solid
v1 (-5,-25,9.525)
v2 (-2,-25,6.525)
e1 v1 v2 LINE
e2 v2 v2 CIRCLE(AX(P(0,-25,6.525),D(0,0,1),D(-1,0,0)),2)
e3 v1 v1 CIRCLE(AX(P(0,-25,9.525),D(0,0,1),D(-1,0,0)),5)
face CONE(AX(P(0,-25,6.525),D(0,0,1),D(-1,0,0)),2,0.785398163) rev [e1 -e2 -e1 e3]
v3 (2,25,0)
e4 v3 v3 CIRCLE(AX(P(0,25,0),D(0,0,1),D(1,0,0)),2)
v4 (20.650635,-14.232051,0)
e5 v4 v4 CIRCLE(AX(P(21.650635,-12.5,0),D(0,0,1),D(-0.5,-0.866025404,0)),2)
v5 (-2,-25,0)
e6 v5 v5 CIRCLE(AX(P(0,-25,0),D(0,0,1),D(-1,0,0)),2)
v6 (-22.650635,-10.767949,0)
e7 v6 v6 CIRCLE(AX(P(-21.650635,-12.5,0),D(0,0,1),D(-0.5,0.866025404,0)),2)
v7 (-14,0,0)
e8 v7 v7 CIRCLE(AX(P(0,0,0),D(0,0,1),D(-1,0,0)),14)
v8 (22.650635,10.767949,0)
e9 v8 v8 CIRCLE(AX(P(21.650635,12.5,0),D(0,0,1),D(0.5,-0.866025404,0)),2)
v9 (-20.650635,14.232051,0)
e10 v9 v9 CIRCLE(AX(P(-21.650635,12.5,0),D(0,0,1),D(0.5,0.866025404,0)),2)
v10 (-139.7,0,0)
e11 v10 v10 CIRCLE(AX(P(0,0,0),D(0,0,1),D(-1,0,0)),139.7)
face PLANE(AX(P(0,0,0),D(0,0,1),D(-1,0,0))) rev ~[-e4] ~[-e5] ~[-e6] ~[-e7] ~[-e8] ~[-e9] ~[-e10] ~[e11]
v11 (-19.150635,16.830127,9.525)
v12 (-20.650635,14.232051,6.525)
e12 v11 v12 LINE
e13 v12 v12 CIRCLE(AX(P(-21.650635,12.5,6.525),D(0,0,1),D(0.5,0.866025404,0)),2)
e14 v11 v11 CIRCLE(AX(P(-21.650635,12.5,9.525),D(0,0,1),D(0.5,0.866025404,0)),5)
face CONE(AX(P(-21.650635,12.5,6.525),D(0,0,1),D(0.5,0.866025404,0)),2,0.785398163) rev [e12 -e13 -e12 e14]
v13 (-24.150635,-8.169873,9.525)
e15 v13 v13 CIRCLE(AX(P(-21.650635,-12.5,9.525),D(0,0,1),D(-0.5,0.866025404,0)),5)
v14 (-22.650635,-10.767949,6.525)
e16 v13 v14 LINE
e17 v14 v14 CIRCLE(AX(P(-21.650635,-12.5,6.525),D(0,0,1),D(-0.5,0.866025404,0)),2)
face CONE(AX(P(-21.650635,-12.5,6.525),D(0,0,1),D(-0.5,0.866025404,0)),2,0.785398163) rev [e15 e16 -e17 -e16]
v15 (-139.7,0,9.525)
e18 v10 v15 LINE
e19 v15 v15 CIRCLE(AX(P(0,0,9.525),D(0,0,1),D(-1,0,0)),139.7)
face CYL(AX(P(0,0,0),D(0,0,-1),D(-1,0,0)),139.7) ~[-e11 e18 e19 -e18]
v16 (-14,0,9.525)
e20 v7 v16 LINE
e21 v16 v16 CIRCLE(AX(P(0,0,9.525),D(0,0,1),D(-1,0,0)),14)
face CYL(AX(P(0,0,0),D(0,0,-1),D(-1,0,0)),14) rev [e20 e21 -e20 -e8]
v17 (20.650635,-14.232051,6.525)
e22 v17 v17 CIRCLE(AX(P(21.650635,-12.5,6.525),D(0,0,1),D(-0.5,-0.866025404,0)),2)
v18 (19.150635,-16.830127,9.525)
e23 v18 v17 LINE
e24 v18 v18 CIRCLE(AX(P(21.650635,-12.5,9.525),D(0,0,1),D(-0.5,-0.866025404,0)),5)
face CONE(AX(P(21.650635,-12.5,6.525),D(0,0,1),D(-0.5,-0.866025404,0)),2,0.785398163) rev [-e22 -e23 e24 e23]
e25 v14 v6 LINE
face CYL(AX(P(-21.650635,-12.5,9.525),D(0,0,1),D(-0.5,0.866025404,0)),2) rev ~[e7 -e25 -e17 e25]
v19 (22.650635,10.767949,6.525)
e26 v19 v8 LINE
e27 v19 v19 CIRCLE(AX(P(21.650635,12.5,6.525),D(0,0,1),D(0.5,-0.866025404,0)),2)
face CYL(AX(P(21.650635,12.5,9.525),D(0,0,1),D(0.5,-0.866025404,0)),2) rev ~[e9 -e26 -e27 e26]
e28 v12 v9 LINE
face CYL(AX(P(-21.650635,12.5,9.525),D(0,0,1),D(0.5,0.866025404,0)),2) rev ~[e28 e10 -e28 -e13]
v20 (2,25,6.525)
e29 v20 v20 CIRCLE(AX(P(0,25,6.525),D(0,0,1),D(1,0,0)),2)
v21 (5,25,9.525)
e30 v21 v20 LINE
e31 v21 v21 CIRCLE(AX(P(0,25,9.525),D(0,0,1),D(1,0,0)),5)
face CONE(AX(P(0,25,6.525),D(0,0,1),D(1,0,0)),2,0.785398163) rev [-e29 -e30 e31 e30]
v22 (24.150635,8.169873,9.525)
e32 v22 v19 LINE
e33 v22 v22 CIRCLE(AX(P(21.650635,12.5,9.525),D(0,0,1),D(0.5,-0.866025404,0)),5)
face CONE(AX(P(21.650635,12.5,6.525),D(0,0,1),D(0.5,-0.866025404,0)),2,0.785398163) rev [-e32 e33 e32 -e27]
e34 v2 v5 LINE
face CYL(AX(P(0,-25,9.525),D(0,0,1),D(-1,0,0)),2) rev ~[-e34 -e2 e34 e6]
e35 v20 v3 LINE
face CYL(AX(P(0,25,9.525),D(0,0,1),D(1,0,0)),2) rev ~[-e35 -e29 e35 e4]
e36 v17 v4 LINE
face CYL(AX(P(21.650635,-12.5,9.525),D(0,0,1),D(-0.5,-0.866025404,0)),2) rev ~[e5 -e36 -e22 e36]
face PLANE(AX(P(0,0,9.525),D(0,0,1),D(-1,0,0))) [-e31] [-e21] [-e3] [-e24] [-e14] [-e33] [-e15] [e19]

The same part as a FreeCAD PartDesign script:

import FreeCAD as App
import Part
import Sketcher
Q = App.Units.Quantity


def edges_at(feature, points):
    """Names of the edges that pass closest to the given points."""
    edges = feature.Shape.Edges
    near = lambda p: min(range(len(edges)), key=lambda i: edges[i].distToShape(Part.Vertex(*p))[0])
    return sorted({f"Edge{near(p) + 1}" for p in points})

doc = App.newDocument("Part")
body = doc.addObject("PartDesign::Body", "Body")

sketch1 = body.newObject("Sketcher::SketchObject", "Sketch")
sketch1.AttachmentSupport = (doc.getObject("XY_Plane"), [""])
sketch1.MapMode = "FlatFace"
sketch1.addGeometry(Part.Circle(App.Vector(0, 0, 0), App.Vector(0, 0, 1), 140), False)
sketch1.addGeometry(Part.Circle(App.Vector(0, 0, 0), App.Vector(0, 0, 1), 14), False)
sketch1.addConstraint(Sketcher.Constraint("Coincident", 0, 3, -1, 1))
sketch1.addConstraint(Sketcher.Constraint("Coincident", 1, 3, -1, 1))
sketch1.addConstraint(Sketcher.Constraint("Diameter", 1, Q("28 mm")))
sketch1.addConstraint(Sketcher.Constraint("Diameter", 0, Q("279.4 mm")))
pad1 = body.newObject("PartDesign::Pad", "Pad")
pad1.Profile = sketch1
pad1.Length = 9.525

sketch2 = body.newObject("Sketcher::SketchObject", "Sketch001")
sketch2.AttachmentSupport = (doc.getObject("XY_Plane"), [""])
sketch2.MapMode = "FlatFace"
sketch2.AttachmentOffset = App.Placement(App.Vector(0, 0, 9.525), App.Rotation())
sketch2.addGeometry(Part.Circle(App.Vector(0, 25, 0), App.Vector(0, 0, 1), 2), False)
sketch2.addConstraint(Sketcher.Constraint("PointOnObject", 0, 3, -2))
sketch2.addConstraint(Sketcher.Constraint("Diameter", 0, Q("4 mm")))
sketch2.addConstraint(Sketcher.Constraint("DistanceY", -1, 1, 0, 3, Q("25 mm")))
pocket1 = body.newObject("PartDesign::Pocket", "Pocket")
pocket1.Profile = sketch2
pocket1.Type = "ThroughAll"
doc.recompute()

polarpattern = body.newObject("PartDesign::PolarPattern", "PolarPattern")
polarpattern.Originals = [pocket1]
polarpattern.Axis = (doc.getObject("Z_Axis"), [""])
polarpattern.Angle = 360
polarpattern.Occurrences = 6
body.Tip = polarpattern
doc.recompute()

chamfer = body.newObject("PartDesign::Chamfer", "Chamfer")
chamfer.Base = (polarpattern, edges_at(polarpattern, [
    (-2, 25, 9.525),
    (-22.651, 10.768, 9.525),
    (-20.651, -14.232, 9.525),
    (2, -25, 9.525),
    (22.651, -10.768, 9.525),
    (20.651, 14.232, 9.525),
]))
chamfer.Size = 3

doc.recompute()
